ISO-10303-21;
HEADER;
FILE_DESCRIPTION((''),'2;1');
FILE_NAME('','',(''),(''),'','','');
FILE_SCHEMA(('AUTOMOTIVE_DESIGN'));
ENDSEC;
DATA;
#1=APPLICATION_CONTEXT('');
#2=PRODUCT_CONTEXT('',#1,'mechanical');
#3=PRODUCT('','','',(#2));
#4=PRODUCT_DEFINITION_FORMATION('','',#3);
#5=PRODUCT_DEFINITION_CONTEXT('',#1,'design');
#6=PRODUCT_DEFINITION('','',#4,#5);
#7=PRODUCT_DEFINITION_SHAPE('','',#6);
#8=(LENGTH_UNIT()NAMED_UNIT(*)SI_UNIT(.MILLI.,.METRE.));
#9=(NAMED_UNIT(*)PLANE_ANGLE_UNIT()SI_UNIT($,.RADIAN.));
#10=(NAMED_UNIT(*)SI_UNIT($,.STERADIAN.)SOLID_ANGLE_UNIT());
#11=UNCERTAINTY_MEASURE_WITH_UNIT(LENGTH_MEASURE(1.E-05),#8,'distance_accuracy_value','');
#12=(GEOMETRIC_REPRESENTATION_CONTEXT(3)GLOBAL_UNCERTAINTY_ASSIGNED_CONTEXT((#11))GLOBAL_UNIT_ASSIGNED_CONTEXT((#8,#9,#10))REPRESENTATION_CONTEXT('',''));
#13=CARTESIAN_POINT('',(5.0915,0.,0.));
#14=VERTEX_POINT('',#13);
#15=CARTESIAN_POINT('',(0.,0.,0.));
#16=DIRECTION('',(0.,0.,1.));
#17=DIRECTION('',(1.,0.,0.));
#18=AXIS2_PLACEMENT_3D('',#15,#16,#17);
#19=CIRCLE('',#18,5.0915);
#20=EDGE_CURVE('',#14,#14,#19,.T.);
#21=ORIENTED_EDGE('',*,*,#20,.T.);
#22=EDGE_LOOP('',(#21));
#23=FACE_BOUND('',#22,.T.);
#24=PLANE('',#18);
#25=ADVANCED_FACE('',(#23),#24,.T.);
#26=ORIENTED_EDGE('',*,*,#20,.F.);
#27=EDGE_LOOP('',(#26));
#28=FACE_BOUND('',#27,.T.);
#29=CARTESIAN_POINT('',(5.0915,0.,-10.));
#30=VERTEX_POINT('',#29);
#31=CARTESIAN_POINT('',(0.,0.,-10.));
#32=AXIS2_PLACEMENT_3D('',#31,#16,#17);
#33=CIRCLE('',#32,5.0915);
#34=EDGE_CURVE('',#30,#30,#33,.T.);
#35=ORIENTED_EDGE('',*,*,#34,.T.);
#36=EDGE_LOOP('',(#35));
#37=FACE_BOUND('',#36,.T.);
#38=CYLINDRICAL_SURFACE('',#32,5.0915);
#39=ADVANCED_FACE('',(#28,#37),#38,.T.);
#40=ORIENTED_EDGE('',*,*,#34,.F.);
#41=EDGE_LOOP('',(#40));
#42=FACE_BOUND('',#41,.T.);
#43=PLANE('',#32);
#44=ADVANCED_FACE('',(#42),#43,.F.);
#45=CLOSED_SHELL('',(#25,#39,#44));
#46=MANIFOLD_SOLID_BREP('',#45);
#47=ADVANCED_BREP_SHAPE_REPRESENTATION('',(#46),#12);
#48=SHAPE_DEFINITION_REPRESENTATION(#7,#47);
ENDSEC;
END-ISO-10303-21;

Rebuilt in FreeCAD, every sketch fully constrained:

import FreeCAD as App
import Part
import Sketcher

doc = App.newDocument("Part")
body = doc.addObject("PartDesign::Body", "Body")

sketch1 = doc.addObject("Sketcher::SketchObject", "Sketch")
body.addObject(sketch1)
sketch1.AttachmentSupport = (doc.XY_Plane, [""])
sketch1.MapMode = "FlatFace"
sketch1.addGeometry(Part.Circle(App.Vector(0, 0, 0), App.Vector(0, 0, 1), 5.0915), False)
sketch1.addConstraint([
    Sketcher.Constraint("Coincident", 0, 3, -1, 1),
    Sketcher.Constraint("Diameter", 0, 10.183),
])
pad1 = doc.addObject("PartDesign::Pad", "Pad")
body.addObject(pad1)
pad1.Profile = sketch1
pad1.Length = 10
pad1.Reversed = True

doc.recompute()
